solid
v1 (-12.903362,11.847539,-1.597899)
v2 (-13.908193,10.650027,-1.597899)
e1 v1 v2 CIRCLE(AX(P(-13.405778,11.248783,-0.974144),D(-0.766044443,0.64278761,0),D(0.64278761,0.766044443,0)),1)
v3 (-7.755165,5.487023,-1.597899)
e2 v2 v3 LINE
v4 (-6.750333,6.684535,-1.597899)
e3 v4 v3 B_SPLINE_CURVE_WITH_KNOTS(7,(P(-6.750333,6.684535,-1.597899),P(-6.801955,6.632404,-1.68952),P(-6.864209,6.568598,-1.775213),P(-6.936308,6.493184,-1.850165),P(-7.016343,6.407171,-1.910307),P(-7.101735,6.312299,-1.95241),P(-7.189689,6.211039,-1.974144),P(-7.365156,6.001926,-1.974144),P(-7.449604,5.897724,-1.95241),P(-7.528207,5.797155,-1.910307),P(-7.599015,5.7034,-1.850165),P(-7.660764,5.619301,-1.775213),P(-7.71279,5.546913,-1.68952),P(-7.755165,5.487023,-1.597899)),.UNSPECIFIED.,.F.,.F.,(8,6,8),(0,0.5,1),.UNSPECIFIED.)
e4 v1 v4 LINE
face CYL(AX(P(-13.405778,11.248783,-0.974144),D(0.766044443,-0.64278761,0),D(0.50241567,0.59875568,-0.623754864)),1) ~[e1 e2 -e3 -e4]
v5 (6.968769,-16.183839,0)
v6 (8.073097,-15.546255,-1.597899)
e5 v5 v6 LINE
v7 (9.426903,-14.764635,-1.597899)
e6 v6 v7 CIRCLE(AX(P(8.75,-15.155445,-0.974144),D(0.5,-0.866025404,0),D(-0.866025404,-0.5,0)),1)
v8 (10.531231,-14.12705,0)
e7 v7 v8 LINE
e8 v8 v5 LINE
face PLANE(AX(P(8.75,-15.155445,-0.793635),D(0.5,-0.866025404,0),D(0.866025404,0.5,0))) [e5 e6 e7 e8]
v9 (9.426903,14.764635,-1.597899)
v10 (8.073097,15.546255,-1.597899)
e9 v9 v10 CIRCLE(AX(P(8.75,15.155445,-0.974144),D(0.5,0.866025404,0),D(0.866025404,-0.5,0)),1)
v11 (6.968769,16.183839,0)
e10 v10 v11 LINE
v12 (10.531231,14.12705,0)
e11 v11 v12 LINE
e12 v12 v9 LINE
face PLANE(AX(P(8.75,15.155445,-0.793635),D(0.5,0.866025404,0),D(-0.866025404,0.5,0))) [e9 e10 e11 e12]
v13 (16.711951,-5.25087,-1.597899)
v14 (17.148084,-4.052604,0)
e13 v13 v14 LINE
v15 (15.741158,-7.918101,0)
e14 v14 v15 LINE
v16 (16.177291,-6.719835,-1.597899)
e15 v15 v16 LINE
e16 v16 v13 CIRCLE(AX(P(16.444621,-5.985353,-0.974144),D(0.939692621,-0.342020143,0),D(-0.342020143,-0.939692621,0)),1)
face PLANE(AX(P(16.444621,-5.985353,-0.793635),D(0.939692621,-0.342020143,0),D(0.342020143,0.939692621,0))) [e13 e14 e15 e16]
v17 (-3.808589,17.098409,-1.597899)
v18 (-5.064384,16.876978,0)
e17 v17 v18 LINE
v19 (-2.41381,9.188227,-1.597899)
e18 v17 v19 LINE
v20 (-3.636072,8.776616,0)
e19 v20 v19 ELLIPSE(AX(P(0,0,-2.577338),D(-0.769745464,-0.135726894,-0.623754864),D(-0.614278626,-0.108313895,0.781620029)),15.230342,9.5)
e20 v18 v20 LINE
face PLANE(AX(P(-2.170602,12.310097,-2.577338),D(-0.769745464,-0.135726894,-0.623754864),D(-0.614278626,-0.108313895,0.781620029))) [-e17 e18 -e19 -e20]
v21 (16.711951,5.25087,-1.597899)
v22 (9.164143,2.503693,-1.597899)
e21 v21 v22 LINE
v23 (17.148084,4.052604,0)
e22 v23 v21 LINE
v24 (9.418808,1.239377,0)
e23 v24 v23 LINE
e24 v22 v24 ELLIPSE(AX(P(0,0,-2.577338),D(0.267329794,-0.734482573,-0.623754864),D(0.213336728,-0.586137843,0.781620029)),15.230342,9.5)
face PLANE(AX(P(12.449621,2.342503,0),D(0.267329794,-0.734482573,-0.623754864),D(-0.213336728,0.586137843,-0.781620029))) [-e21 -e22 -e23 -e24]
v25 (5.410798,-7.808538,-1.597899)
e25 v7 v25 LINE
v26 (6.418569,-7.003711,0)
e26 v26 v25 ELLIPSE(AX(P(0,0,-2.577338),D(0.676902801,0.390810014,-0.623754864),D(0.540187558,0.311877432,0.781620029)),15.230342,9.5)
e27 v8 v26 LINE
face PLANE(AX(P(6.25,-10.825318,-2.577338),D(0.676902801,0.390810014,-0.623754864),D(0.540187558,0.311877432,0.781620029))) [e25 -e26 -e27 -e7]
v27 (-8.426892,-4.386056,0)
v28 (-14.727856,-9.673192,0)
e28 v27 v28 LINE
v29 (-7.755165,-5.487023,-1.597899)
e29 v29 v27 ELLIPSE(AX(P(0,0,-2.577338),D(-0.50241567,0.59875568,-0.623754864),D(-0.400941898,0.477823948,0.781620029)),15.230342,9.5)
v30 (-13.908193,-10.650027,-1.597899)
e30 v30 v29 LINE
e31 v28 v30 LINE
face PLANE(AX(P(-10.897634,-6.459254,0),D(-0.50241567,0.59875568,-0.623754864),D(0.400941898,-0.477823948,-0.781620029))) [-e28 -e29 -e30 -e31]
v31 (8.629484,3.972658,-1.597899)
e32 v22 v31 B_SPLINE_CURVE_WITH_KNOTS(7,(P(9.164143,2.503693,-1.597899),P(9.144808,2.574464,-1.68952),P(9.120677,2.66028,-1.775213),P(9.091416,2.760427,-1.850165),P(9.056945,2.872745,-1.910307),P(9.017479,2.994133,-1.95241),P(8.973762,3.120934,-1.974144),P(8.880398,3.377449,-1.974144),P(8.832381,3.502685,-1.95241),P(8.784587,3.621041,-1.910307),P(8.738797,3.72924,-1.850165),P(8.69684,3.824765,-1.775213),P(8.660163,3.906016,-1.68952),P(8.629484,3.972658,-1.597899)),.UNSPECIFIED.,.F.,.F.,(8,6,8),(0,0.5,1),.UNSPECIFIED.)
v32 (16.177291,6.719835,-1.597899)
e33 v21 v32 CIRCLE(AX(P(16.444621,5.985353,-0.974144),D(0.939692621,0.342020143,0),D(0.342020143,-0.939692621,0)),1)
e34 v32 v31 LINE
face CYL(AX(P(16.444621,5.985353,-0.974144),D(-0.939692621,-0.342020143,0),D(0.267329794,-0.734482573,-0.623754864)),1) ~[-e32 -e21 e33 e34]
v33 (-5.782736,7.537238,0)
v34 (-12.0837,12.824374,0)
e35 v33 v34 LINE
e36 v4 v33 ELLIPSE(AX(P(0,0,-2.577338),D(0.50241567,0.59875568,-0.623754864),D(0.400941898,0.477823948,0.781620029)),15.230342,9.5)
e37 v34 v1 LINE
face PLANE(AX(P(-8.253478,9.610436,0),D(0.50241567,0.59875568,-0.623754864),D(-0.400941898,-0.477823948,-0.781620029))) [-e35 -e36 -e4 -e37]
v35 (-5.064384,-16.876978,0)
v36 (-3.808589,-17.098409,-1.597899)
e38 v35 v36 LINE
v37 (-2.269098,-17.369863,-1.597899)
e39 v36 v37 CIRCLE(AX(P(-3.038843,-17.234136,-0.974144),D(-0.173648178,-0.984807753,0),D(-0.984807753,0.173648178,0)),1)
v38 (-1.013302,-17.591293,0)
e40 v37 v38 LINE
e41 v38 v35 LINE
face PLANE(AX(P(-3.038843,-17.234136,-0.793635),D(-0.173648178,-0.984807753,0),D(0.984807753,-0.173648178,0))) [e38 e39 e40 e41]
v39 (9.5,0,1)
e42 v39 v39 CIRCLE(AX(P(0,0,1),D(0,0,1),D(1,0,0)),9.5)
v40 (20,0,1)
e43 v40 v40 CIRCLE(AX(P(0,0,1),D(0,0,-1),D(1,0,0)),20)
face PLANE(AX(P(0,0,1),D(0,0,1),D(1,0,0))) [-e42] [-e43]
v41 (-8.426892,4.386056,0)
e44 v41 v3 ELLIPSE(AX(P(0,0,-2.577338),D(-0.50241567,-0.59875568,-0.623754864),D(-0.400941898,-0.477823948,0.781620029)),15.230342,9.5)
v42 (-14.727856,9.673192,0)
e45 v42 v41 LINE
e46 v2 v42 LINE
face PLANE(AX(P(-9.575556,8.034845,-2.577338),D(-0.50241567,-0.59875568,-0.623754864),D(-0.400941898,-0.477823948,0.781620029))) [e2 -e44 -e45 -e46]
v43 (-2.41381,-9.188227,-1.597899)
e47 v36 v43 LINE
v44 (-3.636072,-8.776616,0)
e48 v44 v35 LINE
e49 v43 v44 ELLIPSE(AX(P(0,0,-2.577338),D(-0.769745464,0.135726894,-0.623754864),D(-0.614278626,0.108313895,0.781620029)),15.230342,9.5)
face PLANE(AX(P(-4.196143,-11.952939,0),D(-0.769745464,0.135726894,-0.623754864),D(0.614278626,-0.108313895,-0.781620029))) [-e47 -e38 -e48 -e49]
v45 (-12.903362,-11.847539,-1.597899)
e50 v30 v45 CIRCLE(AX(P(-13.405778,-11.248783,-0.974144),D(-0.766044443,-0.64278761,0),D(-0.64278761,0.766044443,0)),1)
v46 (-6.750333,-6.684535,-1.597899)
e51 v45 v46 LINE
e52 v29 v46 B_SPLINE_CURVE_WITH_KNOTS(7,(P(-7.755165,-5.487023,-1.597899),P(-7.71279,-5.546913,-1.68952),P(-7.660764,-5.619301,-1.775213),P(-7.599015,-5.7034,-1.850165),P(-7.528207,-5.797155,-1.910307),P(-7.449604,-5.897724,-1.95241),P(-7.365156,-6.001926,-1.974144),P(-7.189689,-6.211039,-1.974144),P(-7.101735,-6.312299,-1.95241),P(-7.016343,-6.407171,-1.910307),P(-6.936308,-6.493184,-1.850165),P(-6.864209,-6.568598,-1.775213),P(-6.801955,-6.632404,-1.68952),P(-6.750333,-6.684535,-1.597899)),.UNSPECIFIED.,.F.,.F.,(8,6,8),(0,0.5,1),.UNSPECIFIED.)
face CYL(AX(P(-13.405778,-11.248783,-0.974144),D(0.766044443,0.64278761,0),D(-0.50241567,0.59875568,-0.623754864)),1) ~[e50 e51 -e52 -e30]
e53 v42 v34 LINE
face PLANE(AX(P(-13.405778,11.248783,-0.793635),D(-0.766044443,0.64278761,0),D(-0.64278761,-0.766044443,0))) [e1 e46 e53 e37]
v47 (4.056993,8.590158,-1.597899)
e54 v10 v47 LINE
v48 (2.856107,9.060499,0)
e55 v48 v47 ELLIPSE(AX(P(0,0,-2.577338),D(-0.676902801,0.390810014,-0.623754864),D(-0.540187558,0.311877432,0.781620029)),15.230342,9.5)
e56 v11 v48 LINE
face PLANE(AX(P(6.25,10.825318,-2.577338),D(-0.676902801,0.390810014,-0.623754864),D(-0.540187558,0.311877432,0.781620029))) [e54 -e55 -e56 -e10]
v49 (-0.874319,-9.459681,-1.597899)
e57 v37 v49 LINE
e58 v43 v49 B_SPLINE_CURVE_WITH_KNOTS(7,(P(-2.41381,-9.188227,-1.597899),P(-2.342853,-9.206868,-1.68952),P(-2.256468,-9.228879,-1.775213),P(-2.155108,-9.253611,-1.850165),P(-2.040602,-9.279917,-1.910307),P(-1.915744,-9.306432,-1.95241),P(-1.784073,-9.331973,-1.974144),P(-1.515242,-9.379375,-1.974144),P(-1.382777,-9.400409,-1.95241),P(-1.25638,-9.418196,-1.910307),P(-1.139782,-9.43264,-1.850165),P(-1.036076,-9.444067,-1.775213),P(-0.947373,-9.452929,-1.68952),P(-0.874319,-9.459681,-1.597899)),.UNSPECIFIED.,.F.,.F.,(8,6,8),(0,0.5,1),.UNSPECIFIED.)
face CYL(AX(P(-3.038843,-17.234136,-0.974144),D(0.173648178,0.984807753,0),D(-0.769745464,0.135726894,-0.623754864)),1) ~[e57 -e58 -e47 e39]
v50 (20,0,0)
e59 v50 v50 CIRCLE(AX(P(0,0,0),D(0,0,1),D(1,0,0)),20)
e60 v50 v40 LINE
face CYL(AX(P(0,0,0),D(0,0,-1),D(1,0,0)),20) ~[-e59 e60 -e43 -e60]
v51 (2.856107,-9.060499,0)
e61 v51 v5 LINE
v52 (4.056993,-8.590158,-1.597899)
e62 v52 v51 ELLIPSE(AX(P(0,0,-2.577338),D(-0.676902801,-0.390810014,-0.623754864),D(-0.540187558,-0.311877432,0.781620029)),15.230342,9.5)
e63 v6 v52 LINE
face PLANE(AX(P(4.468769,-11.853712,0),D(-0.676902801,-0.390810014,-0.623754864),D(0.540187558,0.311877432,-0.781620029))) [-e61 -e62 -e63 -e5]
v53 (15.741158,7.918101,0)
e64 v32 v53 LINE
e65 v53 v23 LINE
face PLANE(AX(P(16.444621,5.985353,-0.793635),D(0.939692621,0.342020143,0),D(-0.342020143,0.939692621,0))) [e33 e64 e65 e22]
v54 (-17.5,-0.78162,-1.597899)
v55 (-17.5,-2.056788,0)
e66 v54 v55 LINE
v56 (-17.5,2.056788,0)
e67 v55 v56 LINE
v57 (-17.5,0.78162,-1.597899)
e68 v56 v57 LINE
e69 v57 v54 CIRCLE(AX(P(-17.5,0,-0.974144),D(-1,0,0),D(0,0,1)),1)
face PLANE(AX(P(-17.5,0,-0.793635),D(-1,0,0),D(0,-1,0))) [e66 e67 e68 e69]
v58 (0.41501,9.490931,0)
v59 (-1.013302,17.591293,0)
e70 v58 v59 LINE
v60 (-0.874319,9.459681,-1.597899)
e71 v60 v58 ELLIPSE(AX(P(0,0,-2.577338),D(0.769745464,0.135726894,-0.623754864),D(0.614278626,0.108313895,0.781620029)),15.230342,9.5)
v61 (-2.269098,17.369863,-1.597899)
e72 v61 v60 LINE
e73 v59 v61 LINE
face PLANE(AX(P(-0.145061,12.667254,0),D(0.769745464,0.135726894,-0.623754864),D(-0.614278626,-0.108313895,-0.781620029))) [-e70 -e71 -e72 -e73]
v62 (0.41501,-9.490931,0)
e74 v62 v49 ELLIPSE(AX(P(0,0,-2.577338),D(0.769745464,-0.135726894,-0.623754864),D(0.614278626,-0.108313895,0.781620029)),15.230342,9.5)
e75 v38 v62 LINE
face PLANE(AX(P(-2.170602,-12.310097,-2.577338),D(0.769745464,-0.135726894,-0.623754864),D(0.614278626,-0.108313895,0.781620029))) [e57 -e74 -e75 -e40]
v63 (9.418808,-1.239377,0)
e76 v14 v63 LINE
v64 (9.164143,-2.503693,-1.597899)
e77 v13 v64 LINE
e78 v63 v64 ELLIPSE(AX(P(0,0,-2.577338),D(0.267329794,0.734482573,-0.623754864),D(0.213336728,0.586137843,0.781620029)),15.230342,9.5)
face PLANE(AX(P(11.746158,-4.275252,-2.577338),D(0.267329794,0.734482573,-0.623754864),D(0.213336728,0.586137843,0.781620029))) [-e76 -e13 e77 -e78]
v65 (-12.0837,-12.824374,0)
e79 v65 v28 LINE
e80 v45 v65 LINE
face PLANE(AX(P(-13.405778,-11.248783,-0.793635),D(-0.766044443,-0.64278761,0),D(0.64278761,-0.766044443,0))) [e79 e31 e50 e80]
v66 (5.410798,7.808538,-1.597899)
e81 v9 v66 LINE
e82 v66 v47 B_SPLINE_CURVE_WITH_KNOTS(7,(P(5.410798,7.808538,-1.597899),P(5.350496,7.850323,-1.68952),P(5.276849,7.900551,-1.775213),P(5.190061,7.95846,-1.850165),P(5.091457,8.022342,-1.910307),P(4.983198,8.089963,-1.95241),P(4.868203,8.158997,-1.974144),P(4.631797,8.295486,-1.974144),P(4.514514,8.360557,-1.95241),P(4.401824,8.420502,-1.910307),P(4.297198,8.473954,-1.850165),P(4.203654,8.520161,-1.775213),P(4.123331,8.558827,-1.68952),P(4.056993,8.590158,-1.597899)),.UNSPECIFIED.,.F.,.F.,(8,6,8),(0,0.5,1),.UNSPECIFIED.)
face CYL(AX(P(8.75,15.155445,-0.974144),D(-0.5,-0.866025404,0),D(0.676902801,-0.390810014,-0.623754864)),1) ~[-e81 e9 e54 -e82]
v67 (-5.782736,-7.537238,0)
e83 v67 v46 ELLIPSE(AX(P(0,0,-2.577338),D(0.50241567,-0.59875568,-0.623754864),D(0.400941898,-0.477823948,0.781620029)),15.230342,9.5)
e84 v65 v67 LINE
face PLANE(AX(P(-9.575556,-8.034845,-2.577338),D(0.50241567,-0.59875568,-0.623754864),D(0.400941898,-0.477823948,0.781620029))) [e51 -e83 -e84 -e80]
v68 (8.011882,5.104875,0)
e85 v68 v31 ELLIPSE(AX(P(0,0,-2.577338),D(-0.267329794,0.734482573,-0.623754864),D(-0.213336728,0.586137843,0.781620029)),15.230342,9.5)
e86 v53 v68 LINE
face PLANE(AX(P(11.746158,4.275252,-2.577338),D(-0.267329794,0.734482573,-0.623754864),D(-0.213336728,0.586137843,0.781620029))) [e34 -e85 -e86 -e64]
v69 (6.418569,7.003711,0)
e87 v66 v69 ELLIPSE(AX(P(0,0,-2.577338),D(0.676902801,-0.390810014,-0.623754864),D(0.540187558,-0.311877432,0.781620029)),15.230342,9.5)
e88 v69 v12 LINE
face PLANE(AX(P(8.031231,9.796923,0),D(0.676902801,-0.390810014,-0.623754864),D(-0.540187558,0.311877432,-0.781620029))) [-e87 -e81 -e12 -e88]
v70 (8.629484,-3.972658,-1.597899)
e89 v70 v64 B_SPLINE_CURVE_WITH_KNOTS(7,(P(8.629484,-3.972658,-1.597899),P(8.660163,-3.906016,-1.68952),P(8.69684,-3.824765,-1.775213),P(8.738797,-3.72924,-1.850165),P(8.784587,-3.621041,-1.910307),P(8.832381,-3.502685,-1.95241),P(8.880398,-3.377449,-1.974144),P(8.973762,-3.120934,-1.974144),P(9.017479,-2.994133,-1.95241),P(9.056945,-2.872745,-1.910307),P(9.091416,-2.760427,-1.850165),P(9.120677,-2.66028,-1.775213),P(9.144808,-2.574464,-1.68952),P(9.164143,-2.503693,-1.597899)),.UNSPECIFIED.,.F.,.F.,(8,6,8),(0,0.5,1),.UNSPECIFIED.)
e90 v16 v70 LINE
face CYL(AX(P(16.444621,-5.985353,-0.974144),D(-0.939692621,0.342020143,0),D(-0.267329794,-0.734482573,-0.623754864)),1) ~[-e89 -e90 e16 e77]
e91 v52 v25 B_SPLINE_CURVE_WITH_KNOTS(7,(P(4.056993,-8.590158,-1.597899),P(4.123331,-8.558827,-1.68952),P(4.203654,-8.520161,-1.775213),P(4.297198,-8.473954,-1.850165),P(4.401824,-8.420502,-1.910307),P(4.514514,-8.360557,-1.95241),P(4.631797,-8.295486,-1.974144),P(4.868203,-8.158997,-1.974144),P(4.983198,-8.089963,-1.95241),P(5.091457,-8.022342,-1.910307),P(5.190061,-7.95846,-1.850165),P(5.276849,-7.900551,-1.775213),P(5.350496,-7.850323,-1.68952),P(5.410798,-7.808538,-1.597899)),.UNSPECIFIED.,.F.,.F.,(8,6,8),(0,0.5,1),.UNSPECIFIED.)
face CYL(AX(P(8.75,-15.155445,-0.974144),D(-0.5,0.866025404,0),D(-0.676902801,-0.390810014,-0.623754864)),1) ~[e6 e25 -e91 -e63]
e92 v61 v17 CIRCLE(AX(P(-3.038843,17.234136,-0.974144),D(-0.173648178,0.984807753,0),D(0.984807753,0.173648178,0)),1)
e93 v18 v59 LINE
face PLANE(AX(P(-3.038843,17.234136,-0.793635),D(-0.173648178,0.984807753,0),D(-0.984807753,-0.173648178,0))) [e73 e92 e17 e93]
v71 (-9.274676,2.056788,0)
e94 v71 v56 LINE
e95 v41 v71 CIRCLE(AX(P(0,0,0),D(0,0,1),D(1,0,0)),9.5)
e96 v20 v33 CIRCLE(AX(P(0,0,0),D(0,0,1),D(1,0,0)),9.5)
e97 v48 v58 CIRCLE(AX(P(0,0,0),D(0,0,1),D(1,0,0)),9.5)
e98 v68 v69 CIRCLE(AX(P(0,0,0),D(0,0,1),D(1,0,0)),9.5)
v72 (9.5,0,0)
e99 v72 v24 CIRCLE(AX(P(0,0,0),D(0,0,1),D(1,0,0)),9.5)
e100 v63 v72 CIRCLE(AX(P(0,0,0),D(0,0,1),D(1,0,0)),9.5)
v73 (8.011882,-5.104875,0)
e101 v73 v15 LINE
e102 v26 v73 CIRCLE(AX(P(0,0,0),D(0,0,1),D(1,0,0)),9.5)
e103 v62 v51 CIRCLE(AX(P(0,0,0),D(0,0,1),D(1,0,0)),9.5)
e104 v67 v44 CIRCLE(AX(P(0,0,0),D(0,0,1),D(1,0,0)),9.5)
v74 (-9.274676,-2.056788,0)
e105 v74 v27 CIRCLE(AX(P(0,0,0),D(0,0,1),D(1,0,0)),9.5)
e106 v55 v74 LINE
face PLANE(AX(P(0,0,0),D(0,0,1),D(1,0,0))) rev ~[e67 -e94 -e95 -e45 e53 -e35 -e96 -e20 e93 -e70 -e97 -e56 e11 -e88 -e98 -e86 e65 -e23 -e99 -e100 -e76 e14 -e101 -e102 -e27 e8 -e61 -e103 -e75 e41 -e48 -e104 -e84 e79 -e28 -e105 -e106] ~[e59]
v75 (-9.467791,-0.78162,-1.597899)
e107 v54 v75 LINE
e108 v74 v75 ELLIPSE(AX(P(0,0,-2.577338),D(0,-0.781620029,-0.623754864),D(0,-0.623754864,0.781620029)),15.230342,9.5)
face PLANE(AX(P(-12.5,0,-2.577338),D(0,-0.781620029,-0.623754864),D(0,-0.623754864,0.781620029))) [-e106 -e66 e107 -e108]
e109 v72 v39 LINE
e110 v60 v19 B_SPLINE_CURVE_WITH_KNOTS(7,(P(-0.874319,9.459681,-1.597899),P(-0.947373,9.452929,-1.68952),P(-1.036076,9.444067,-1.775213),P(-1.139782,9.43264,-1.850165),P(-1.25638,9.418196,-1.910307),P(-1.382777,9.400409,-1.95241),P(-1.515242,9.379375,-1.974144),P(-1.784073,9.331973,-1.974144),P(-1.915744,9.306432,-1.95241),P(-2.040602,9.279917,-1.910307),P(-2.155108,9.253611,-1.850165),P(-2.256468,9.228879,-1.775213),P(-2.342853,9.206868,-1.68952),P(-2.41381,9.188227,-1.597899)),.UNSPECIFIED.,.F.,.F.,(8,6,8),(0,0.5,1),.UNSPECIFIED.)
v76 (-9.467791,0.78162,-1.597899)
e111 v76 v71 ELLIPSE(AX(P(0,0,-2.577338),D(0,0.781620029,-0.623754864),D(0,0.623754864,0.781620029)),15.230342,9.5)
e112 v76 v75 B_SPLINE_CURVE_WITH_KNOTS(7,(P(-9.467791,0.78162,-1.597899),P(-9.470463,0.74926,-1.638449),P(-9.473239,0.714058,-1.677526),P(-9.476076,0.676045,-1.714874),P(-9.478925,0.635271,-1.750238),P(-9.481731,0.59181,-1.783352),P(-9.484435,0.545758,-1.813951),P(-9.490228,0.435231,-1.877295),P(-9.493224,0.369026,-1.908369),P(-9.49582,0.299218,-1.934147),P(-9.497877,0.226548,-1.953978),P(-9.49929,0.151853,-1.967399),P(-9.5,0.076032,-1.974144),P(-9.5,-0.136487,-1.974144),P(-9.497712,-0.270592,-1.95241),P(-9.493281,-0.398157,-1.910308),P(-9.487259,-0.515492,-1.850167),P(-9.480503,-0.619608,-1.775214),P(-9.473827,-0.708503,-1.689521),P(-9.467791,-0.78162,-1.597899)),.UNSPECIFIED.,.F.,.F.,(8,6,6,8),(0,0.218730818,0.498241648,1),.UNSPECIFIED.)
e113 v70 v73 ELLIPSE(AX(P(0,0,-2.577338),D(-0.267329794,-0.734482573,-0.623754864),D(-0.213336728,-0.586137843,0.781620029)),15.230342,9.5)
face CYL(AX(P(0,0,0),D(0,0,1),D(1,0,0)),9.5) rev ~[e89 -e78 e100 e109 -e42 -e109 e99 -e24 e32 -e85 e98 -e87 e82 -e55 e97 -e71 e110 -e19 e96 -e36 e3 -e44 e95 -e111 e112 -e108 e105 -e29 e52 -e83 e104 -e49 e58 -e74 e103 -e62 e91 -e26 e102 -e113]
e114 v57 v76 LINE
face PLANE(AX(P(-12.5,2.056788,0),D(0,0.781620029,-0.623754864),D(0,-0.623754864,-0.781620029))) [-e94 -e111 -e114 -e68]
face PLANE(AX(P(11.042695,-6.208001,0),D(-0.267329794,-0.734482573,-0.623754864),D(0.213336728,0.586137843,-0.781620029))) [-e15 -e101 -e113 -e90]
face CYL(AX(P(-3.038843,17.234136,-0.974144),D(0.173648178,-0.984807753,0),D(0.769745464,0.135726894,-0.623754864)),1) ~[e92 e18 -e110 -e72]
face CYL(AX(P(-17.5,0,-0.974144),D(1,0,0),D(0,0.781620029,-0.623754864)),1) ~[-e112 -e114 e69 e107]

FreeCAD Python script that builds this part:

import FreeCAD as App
import Part
import Sketcher


def edges_at(feature, points):
    """Names of the edges that pass closest to the given points."""
    edges = feature.Shape.Edges
    near = lambda p: min(range(len(edges)), key=lambda i: edges[i].distToShape(Part.Vertex(*p))[0])
    return sorted({f"Edge{near(p) + 1}" for p in points})


def add_polygon(sketch, points):
    """Adds a closed chain of lines whose ends are joined by coincident constraints."""
    first, n = sketch.GeometryCount, len(points)
    for a, b in zip(points, points[1:] + points[:1]):
        sketch.addGeometry(Part.LineSegment(App.Vector(*a, 0), App.Vector(*b, 0)), False)
    for i in range(n):
        sketch.addConstraint(Sketcher.Constraint("Coincident", first + i, 2, first + (i + 1) % n, 1))

doc = App.newDocument("Part")
params = doc.addObject("Spreadsheet::Sheet", "Params")
for row, (alias, value) in enumerate([
    ("sketch1_diameter", "40 mm"),
    ("pad1_length", "1 mm"),
    ("pad2_length", "10 mm"),
    ("fillet_radius", "1 mm"),
    ("sketch3_diameter", "19 mm"),
    ("pocket1_length", "10 mm"),
], start=1):
    params.set(f"A{row}", alias)
    params.set(f"B{row}", "=" + value)
    params.setAlias(f"B{row}", alias)

body = doc.addObject("PartDesign::Body", "Body")

# Sketch on XY plane
sketch1 = body.newObject("Sketcher::SketchObject", "Sketch")
sketch1.AttachmentSupport = (doc.getObject("XY_Plane"), [""])
sketch1.MapMode = "FlatFace"
sketch1.addGeometry(Part.Circle(App.Vector(0, 0, 0), App.Vector(0, 0, 1), 20), False)
sketch1.addConstraint([
    Sketcher.Constraint("Coincident", 0, 3, -1, 1),
    Sketcher.Constraint("Diameter", 0, 40.0),
])
sketch1.setExpression("Constraints[1]", "Params.sketch1_diameter")
pad1 = body.newObject("PartDesign::Pad", "Pad")
pad1.Profile = sketch1
pad1.setExpression("Length", "Params.pad1_length")

# Sketch on YZ plane
sketch2 = body.newObject("Sketcher::SketchObject", "Sketch001")
sketch2.AttachmentSupport = (doc.getObject("YZ_Plane"), [""])
sketch2.MapMode = "FlatFace"
sketch2.AttachmentOffset = App.Placement(App.Vector(0, 0, -12.5), App.Rotation())
add_polygon(sketch2, [(-2.1, 0), (2.1, 0), (0, -2.6)])  # lines 0-2
sketch2.addConstraint([
    Sketcher.Constraint("Horizontal", 0),
    Sketcher.Constraint("Symmetric", 0, 2, 2, 2, -1, 1),
    Sketcher.Constraint("PointOnObject", 1, 2, -2),
    Sketcher.Constraint("Distance", 1, 3.29743),
    Sketcher.Constraint("DistanceX", 0, 1, 0, 2, 4.113577),
])
pad2 = body.newObject("PartDesign::Pad", "Pad001")
pad2.Profile = sketch2
pad2.setExpression("Length", "Params.pad2_length")
pad2.Midplane = True
body2 = doc.addObject("PartDesign::Body", "Body001")
doc.recompute()

body2.BaseFeature = body
doc.recompute()

body3 = doc.addObject("PartDesign::Body", "Body002")
body3.BaseFeature = body
body3.Placement = App.Placement(App.Vector(0, 0, 0), App.Rotation(App.Vector(0, 0, 1), 40))
boolean = body2.newObject("PartDesign::Boolean", "Boolean")
boolean.Type = "Fuse"
boolean.addObjects([body3])
doc.recompute()

body4 = doc.addObject("PartDesign::Body", "Body003")
body4.BaseFeature = body
body4.Placement = App.Placement(App.Vector(0, 0, 0), App.Rotation(App.Vector(0, 0, 1), 80))
boolean2 = body2.newObject("PartDesign::Boolean", "Boolean001")
boolean2.Type = "Fuse"
boolean2.addObjects([body4])
doc.recompute()

body5 = doc.addObject("PartDesign::Body", "Body004")
body5.BaseFeature = body
body5.Placement = App.Placement(App.Vector(0, 0, 0), App.Rotation(App.Vector(0, 0, 1), 120))
boolean3 = body2.newObject("PartDesign::Boolean", "Boolean002")
boolean3.Type = "Fuse"
boolean3.addObjects([body5])
doc.recompute()

body6 = doc.addObject("PartDesign::Body", "Body005")
body6.BaseFeature = body
body6.Placement = App.Placement(App.Vector(0, 0, 0), App.Rotation(App.Vector(0, 0, 1), 160))
boolean4 = body2.newObject("PartDesign::Boolean", "Boolean003")
boolean4.Type = "Fuse"
boolean4.addObjects([body6])
doc.recompute()

body7 = doc.addObject("PartDesign::Body", "Body006")
body7.BaseFeature = body
body7.Placement = App.Placement(App.Vector(0, 0, 0), App.Rotation(App.Vector(0, 0, 1), 200))
boolean5 = body2.newObject("PartDesign::Boolean", "Boolean004")
boolean5.Type = "Fuse"
boolean5.addObjects([body7])
doc.recompute()

body8 = doc.addObject("PartDesign::Body", "Body007")
body8.BaseFeature = body
body8.Placement = App.Placement(App.Vector(0, 0, 0), App.Rotation(App.Vector(0, 0, 1), 240))
boolean6 = body2.newObject("PartDesign::Boolean", "Boolean005")
boolean6.Type = "Fuse"
boolean6.addObjects([body8])
doc.recompute()

body9 = doc.addObject("PartDesign::Body", "Body008")
body9.BaseFeature = body
body9.Placement = App.Placement(App.Vector(0, 0, 0), App.Rotation(App.Vector(0, 0, 1), 280))
boolean7 = body2.newObject("PartDesign::Boolean", "Boolean006")
boolean7.Type = "Fuse"
boolean7.addObjects([body9])
doc.recompute()

body.Placement = App.Placement(App.Vector(0, 0, 0), App.Rotation(App.Vector(0, 0, 1), 320))
boolean8 = body2.newObject("PartDesign::Boolean", "Boolean007")
boolean8.Type = "Fuse"
boolean8.addObjects([body])
doc.recompute()

fillet = body2.newObject("PartDesign::Fillet", "Fillet")
fillet.Base = (boolean8, edges_at(boolean8, [
    (-12.5, 0, -2.577),
    (-9.576, 8.035, -2.577),
    (-2.171, 12.31, -2.577),
    (6.25, 10.825, -2.577),
    (11.746, 4.275, -2.577),
    (11.746, -4.275, -2.577),
    (6.25, -10.825, -2.577),
    (-2.171, -12.31, -2.577),
    (-9.576, -8.035, -2.577),
]))
fillet.setExpression("Radius", "Params.fillet_radius")

# Sketch on XY plane
sketch3 = body2.newObject("Sketcher::SketchObject", "Sketch002")
sketch3.AttachmentSupport = (doc.getObject("XY_Plane001"), [""])
sketch3.MapMode = "FlatFace"
sketch3.addGeometry(Part.Circle(App.Vector(0, 0, 0), App.Vector(0, 0, 1), 10), False)
sketch3.addConstraint([
    Sketcher.Constraint("Coincident", 0, 3, -1, 1),
    Sketcher.Constraint("Diameter", 0, 19.0),
])
sketch3.setExpression("Constraints[1]", "Params.sketch3_diameter")
pocket1 = body2.newObject("PartDesign::Pocket", "Pocket")
pocket1.Profile = sketch3
pocket1.setExpression("Length", "Params.pocket1_length")
pocket1.Midplane = True

doc.recompute()
